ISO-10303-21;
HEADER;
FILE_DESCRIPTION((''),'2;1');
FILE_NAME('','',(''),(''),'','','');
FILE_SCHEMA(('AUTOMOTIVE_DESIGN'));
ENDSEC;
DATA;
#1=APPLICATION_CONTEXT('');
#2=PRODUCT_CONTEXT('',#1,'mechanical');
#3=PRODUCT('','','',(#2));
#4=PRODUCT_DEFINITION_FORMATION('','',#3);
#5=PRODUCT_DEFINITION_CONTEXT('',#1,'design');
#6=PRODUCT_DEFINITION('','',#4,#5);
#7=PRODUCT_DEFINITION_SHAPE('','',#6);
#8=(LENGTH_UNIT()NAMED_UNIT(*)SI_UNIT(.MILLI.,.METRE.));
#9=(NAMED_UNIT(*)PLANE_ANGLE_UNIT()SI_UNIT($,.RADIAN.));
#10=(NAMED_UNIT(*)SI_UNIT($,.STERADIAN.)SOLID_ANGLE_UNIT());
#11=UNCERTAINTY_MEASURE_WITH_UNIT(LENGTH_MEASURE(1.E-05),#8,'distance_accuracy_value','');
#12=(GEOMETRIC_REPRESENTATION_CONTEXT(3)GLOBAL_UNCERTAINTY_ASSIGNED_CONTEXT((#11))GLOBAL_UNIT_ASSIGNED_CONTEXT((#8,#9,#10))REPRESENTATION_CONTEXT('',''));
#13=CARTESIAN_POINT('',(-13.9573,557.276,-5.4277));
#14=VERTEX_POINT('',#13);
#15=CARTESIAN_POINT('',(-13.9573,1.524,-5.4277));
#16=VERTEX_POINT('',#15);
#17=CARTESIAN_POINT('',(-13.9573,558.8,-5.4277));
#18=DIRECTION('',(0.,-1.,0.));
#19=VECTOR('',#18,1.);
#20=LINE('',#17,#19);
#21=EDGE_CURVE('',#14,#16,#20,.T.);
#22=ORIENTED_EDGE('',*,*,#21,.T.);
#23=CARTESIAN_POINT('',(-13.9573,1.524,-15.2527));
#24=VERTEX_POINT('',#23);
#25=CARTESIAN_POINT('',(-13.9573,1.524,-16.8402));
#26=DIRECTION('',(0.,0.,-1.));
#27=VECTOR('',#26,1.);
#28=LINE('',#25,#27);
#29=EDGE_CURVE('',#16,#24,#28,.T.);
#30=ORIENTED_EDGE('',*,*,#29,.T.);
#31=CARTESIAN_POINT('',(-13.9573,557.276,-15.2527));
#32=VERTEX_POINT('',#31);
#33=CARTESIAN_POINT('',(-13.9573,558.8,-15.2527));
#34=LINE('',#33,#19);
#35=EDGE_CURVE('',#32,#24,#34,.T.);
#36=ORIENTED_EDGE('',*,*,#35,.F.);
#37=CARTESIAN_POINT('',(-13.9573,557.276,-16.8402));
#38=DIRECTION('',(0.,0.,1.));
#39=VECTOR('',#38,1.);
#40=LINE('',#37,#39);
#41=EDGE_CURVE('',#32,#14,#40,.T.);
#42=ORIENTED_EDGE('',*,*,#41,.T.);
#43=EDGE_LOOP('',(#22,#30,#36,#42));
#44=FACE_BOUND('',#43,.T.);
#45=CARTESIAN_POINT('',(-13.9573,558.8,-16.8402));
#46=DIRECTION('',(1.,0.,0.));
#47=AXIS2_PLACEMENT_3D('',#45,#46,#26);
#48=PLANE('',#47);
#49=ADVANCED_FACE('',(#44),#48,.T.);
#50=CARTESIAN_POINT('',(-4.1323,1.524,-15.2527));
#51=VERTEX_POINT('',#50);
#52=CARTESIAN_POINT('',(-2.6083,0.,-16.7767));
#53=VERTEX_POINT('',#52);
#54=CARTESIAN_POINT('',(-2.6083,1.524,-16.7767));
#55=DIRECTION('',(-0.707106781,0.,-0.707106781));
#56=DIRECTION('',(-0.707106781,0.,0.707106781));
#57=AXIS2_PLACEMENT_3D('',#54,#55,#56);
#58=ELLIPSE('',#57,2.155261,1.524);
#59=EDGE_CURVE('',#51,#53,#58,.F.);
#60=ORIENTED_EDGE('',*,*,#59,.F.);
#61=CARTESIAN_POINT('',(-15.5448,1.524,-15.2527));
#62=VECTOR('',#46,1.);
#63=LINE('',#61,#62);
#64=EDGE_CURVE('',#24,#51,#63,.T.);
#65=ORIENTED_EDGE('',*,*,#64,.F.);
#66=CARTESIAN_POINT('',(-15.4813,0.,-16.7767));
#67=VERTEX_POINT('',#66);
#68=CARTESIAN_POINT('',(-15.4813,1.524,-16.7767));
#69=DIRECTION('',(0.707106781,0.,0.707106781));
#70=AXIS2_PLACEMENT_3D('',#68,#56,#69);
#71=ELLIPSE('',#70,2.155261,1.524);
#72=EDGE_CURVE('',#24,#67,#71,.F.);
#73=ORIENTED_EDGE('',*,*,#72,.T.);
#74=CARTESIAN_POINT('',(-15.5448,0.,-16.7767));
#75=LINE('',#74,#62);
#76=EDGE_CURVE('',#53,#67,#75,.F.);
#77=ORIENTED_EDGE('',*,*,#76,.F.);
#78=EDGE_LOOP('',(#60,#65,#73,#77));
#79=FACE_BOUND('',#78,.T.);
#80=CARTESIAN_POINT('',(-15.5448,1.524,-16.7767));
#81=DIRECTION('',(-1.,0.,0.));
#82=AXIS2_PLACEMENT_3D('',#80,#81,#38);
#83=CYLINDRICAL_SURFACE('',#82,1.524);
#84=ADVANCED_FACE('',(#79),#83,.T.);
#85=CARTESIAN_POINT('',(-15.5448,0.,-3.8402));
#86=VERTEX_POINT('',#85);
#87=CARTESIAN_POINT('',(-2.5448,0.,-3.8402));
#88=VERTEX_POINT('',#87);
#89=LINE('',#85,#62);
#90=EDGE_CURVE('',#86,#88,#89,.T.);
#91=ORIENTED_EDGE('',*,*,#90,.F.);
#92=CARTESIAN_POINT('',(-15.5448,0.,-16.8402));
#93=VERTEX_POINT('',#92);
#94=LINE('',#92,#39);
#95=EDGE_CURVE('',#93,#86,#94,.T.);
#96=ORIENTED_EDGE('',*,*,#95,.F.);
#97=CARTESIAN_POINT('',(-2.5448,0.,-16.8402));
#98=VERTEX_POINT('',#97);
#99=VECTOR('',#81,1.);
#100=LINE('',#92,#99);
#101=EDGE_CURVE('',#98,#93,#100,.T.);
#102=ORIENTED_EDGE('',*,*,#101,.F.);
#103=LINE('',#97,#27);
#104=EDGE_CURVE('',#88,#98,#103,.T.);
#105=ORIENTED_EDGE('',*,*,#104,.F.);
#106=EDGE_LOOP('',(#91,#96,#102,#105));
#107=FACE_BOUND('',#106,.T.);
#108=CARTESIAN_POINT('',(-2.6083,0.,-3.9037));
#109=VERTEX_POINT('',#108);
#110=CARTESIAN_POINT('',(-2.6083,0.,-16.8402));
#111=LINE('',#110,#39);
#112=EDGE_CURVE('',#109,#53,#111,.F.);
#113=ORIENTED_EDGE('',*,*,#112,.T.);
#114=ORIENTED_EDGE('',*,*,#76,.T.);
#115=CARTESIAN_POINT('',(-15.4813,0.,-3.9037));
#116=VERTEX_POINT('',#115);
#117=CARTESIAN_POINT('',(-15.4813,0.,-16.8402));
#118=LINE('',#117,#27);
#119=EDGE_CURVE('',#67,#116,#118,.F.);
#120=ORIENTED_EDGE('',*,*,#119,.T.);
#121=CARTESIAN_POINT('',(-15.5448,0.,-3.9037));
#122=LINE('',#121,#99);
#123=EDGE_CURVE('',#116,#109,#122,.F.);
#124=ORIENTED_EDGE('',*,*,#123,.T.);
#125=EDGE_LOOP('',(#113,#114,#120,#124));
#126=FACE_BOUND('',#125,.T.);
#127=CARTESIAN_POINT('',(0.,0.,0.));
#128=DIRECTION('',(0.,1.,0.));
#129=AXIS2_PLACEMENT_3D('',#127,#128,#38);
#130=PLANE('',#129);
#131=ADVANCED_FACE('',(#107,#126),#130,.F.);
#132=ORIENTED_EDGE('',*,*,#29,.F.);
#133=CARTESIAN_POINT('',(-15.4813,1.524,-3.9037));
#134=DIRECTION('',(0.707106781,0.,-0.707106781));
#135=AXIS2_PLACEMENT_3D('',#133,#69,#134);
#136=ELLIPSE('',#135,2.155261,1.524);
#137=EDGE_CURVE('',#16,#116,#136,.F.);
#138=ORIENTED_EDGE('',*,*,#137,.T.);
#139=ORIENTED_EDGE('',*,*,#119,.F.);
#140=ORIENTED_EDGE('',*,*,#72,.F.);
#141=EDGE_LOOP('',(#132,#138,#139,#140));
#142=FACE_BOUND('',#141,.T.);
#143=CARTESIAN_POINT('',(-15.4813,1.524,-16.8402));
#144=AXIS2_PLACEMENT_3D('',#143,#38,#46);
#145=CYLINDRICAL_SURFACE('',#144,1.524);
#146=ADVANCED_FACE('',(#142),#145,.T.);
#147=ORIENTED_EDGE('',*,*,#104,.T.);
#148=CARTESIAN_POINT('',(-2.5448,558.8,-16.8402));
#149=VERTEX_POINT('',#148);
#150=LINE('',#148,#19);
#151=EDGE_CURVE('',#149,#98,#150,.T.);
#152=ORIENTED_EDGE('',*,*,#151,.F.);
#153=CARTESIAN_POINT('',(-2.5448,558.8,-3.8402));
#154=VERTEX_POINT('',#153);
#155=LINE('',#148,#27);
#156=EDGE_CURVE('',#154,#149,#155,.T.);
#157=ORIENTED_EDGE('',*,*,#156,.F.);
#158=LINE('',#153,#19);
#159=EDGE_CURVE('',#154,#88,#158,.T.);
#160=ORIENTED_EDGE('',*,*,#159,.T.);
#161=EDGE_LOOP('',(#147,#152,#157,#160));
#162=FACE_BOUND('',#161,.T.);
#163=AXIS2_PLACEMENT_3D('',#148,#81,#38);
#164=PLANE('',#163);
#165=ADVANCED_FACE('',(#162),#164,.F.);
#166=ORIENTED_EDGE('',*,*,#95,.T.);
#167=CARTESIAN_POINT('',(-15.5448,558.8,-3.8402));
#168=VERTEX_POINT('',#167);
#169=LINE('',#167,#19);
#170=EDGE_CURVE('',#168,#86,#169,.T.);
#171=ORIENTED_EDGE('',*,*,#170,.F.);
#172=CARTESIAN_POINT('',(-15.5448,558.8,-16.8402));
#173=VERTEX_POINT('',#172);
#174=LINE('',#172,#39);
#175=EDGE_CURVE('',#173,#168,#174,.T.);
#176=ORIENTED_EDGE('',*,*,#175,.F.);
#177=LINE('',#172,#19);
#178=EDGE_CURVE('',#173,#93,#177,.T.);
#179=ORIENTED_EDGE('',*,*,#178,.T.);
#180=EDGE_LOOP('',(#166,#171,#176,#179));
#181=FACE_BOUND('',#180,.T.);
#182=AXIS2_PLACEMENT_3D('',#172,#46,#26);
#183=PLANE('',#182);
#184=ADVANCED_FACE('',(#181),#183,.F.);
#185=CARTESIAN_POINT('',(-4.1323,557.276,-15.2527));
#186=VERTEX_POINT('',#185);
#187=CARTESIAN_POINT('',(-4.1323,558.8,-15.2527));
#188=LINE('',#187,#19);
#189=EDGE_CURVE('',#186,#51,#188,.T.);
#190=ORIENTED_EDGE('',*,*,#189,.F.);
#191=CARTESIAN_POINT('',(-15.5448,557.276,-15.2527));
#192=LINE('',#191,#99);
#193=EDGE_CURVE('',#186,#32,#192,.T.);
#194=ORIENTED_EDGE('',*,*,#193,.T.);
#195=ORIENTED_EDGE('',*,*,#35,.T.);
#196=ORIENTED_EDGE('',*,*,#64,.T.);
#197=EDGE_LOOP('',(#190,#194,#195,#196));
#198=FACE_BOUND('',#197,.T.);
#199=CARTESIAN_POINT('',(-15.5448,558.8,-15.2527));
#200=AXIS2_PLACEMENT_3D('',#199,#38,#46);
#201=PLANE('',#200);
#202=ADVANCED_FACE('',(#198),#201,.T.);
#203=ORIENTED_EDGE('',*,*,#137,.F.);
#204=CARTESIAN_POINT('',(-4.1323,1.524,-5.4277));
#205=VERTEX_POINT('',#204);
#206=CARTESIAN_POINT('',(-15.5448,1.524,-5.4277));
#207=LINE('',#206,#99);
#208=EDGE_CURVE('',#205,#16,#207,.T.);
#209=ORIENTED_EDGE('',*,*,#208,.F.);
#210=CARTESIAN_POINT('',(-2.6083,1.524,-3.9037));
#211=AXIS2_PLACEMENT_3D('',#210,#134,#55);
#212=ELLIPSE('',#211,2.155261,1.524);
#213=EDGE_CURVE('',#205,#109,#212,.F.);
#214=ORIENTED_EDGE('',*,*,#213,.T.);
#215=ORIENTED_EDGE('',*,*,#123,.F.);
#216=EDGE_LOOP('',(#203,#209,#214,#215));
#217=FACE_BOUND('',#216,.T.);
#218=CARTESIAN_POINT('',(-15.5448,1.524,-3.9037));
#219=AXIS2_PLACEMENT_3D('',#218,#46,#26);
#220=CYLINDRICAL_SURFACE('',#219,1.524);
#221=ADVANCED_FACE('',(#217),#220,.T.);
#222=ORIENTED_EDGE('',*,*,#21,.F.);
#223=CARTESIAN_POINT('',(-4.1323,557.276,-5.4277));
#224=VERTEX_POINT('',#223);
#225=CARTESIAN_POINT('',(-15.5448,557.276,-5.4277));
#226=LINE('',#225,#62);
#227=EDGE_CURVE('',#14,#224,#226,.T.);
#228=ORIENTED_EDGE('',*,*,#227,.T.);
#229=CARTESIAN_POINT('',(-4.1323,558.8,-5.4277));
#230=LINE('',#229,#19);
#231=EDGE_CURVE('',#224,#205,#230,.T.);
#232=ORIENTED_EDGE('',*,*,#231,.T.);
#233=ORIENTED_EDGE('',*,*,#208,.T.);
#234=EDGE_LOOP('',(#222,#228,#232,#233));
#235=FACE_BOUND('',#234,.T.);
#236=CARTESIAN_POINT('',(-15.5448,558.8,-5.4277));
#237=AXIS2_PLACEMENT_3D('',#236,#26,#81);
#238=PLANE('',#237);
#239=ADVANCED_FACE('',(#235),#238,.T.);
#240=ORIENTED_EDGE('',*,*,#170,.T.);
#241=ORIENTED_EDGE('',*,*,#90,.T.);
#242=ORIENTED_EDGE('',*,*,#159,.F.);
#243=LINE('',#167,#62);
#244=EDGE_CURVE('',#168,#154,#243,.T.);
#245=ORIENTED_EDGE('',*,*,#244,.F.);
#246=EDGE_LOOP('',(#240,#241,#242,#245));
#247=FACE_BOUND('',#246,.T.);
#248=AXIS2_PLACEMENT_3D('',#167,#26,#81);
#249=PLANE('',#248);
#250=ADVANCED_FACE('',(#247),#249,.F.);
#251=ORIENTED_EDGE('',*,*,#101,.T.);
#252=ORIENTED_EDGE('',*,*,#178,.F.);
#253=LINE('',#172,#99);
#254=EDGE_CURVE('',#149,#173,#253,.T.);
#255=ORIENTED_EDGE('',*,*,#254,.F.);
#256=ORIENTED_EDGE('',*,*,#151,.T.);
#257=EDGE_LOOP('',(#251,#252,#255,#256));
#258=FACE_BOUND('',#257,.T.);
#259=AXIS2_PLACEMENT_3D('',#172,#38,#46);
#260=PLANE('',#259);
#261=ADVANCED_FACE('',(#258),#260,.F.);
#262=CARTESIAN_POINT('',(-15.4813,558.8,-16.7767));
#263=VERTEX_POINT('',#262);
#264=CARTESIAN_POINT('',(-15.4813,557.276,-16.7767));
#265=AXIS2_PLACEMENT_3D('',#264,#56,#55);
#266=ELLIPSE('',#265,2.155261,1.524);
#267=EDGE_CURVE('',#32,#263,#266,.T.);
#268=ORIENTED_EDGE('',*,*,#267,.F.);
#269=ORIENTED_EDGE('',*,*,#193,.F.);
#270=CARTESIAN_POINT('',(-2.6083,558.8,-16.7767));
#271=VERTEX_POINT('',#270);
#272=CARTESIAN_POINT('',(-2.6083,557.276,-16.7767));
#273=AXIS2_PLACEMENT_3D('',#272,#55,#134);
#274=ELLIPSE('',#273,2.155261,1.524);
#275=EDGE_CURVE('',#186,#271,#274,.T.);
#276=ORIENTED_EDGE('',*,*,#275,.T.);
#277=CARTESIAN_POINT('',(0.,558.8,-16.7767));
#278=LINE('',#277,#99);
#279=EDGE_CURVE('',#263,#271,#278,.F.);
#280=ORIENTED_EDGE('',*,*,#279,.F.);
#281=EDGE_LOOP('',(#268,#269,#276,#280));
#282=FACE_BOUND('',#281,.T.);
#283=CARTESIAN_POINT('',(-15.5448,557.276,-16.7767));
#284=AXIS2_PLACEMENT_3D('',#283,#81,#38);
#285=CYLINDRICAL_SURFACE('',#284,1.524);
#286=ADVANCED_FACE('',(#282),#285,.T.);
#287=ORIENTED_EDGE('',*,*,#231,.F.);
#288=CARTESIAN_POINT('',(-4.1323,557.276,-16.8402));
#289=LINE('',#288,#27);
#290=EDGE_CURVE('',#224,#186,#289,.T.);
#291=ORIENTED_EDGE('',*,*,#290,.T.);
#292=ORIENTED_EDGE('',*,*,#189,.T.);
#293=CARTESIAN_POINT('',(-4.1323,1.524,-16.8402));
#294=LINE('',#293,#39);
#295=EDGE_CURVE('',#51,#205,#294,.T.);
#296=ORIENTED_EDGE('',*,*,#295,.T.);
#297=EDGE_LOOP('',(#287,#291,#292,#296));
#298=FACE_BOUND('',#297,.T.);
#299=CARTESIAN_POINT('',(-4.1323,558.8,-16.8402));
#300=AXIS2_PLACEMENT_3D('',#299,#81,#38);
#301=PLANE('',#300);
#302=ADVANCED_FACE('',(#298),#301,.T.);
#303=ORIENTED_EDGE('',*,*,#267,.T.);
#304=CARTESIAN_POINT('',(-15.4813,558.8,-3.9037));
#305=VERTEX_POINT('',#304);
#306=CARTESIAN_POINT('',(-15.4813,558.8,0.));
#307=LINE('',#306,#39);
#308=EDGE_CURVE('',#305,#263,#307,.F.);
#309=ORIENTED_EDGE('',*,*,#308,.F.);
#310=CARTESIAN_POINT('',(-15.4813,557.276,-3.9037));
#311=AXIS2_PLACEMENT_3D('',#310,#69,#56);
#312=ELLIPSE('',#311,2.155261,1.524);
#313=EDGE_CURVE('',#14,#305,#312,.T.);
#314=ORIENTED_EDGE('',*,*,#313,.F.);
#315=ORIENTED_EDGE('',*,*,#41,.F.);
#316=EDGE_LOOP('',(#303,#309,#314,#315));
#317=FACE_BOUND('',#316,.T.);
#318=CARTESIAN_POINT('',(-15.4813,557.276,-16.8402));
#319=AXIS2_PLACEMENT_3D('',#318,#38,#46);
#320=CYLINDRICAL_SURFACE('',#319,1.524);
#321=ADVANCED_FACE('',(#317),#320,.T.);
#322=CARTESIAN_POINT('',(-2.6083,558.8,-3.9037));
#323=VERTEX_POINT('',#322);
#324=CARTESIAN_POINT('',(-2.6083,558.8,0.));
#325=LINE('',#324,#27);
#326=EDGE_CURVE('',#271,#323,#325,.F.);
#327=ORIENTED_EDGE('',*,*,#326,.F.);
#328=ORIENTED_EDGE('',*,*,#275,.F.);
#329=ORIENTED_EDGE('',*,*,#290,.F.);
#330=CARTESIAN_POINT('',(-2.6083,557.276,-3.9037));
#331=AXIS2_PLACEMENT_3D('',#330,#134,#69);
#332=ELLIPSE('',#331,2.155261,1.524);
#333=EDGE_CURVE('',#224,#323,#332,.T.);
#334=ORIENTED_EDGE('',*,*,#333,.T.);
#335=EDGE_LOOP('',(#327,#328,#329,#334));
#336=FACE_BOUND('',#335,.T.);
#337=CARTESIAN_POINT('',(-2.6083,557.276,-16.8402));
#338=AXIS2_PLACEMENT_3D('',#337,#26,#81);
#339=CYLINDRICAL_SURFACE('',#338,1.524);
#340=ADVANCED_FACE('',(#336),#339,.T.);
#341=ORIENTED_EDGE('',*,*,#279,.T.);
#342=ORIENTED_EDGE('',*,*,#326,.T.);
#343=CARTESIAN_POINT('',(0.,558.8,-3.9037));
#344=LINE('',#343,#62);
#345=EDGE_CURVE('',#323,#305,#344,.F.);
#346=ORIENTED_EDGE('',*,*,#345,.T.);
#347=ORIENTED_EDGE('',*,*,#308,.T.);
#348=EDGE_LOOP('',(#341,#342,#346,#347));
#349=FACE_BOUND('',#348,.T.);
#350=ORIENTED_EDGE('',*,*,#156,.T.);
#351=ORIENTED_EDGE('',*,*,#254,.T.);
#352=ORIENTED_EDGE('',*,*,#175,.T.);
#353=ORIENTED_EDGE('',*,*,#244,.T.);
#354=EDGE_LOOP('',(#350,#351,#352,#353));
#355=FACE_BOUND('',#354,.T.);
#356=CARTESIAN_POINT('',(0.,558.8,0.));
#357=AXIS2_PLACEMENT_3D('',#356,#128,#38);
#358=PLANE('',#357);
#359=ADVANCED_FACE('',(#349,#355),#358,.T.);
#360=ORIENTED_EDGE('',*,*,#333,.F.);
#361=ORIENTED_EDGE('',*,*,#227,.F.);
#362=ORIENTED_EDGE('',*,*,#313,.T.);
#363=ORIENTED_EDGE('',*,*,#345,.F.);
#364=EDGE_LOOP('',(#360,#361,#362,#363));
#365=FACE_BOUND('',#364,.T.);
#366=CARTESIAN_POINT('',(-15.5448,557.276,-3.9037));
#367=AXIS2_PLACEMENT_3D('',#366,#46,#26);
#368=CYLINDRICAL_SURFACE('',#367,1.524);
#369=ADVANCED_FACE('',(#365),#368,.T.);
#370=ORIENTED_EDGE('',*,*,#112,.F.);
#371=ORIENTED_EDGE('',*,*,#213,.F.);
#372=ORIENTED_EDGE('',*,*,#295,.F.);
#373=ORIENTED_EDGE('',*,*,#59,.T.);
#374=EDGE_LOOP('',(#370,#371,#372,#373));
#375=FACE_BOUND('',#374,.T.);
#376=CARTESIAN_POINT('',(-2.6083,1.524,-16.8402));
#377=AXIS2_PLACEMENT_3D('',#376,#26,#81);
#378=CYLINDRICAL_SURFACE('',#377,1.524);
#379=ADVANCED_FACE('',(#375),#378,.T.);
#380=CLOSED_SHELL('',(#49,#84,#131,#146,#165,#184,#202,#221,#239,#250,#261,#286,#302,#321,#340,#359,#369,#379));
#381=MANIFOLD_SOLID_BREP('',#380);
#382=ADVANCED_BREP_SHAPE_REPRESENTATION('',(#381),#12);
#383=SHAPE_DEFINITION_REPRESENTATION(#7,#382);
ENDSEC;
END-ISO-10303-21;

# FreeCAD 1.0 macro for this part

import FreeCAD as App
import Part
import Sketcher

V = App.Vector
Q = App.Units.Quantity


def edges_at(feature, points):
    """Names of the edges that pass closest to the given points."""
    edges = feature.Shape.Edges
    near = lambda p: min(range(len(edges)), key=lambda i: edges[i].distToShape(Part.Vertex(*p))[0])
    return sorted({f"Edge{near(p) + 1}" for p in points})


def faces_at(feature, points):
    """Names of the faces that lie closest to the given points."""
    faces = feature.Shape.Faces
    near = lambda p: min(range(len(faces)), key=lambda i: faces[i].distToShape(Part.Vertex(*p))[0])
    return sorted({f"Face{near(p) + 1}" for p in points})


def add_polygon(sketch, points):
    """Adds a closed chain of lines whose ends are joined by coincident constraints."""
    first, n = sketch.GeometryCount, len(points)
    for a, b in zip(points, points[1:] + points[:1]):
        sketch.addGeometry(Part.LineSegment(App.Vector(*a, 0), App.Vector(*b, 0)), False)
    for i in range(n):
        sketch.addConstraint(Sketcher.Constraint("Coincident", first + i, 2, first + (i + 1) % n, 1))

doc = App.newDocument("Part")
body = doc.addObject("PartDesign::Body", "Body")

sketch1 = body.newObject("Sketcher::SketchObject", "Sketch")
sketch1.AttachmentSupport = (doc.getObject("XZ_Plane"), [""])
sketch1.MapMode = "FlatFace"
add_polygon(sketch1, [(-15.5448, -16.8402), (-15.5448, -3.8402), (-2.5448, -3.8402), (-2.5448, -16.8402)])
sketch1.addConstraint(Sketcher.Constraint("Vertical", 0))
sketch1.addConstraint(Sketcher.Constraint("Horizontal", 1))
sketch1.addConstraint(Sketcher.Constraint("Vertical", 2))
sketch1.addConstraint(Sketcher.Constraint("Horizontal", 3))
sketch1.addConstraint(Sketcher.Constraint("Equal", 3, 0))
sketch1.addConstraint(Sketcher.Constraint("DistanceX", 0, 2, -1, 1, Q("0.612 in")))
sketch1.addConstraint(Sketcher.Constraint("DistanceY", 2, 2, -1, 1, Q("0.663 in")))
sketch1.addConstraint(Sketcher.Constraint("DistanceX", 1, 1, 1, 2, Q("13 mm")))
pad1 = body.newObject("PartDesign::Pad", "Pad")
pad1.Profile = sketch1
pad1.Length = Q("22 in")
pad1.Reversed = True
doc.recompute()

thickness = body.newObject("PartDesign::Thickness", "Thickness")
thickness.Base = (pad1, faces_at(pad1, [(-9.045, 558.8, -10.34), (-9.045, 0, -10.34)]))
thickness.Value = Q("0.0625 in")
thickness.Reversed = True
thickness.Join = "Intersection"
doc.recompute()

fillet = body.newObject("PartDesign::Fillet", "Fillet")
fillet.Base = (thickness, edges_at(thickness, [
    (-13.957, 0, -10.34),
    (-9.045, 0, -5.428),
    (-4.132, 0, -10.34),
    (-9.045, 0, -15.253),
]))
fillet.Radius = Q("0.06 in")
doc.recompute()

fillet2 = body.newObject("PartDesign::Fillet", "Fillet001")
fillet2.Base = (fillet, edges_at(fillet, [
    (-13.957, 558.8, -10.34),
    (-9.045, 558.8, -5.428),
    (-4.132, 558.8, -10.34),
    (-9.045, 558.8, -15.253),
]))
fillet2.Radius = Q("0.06 in")

doc.recompute()
